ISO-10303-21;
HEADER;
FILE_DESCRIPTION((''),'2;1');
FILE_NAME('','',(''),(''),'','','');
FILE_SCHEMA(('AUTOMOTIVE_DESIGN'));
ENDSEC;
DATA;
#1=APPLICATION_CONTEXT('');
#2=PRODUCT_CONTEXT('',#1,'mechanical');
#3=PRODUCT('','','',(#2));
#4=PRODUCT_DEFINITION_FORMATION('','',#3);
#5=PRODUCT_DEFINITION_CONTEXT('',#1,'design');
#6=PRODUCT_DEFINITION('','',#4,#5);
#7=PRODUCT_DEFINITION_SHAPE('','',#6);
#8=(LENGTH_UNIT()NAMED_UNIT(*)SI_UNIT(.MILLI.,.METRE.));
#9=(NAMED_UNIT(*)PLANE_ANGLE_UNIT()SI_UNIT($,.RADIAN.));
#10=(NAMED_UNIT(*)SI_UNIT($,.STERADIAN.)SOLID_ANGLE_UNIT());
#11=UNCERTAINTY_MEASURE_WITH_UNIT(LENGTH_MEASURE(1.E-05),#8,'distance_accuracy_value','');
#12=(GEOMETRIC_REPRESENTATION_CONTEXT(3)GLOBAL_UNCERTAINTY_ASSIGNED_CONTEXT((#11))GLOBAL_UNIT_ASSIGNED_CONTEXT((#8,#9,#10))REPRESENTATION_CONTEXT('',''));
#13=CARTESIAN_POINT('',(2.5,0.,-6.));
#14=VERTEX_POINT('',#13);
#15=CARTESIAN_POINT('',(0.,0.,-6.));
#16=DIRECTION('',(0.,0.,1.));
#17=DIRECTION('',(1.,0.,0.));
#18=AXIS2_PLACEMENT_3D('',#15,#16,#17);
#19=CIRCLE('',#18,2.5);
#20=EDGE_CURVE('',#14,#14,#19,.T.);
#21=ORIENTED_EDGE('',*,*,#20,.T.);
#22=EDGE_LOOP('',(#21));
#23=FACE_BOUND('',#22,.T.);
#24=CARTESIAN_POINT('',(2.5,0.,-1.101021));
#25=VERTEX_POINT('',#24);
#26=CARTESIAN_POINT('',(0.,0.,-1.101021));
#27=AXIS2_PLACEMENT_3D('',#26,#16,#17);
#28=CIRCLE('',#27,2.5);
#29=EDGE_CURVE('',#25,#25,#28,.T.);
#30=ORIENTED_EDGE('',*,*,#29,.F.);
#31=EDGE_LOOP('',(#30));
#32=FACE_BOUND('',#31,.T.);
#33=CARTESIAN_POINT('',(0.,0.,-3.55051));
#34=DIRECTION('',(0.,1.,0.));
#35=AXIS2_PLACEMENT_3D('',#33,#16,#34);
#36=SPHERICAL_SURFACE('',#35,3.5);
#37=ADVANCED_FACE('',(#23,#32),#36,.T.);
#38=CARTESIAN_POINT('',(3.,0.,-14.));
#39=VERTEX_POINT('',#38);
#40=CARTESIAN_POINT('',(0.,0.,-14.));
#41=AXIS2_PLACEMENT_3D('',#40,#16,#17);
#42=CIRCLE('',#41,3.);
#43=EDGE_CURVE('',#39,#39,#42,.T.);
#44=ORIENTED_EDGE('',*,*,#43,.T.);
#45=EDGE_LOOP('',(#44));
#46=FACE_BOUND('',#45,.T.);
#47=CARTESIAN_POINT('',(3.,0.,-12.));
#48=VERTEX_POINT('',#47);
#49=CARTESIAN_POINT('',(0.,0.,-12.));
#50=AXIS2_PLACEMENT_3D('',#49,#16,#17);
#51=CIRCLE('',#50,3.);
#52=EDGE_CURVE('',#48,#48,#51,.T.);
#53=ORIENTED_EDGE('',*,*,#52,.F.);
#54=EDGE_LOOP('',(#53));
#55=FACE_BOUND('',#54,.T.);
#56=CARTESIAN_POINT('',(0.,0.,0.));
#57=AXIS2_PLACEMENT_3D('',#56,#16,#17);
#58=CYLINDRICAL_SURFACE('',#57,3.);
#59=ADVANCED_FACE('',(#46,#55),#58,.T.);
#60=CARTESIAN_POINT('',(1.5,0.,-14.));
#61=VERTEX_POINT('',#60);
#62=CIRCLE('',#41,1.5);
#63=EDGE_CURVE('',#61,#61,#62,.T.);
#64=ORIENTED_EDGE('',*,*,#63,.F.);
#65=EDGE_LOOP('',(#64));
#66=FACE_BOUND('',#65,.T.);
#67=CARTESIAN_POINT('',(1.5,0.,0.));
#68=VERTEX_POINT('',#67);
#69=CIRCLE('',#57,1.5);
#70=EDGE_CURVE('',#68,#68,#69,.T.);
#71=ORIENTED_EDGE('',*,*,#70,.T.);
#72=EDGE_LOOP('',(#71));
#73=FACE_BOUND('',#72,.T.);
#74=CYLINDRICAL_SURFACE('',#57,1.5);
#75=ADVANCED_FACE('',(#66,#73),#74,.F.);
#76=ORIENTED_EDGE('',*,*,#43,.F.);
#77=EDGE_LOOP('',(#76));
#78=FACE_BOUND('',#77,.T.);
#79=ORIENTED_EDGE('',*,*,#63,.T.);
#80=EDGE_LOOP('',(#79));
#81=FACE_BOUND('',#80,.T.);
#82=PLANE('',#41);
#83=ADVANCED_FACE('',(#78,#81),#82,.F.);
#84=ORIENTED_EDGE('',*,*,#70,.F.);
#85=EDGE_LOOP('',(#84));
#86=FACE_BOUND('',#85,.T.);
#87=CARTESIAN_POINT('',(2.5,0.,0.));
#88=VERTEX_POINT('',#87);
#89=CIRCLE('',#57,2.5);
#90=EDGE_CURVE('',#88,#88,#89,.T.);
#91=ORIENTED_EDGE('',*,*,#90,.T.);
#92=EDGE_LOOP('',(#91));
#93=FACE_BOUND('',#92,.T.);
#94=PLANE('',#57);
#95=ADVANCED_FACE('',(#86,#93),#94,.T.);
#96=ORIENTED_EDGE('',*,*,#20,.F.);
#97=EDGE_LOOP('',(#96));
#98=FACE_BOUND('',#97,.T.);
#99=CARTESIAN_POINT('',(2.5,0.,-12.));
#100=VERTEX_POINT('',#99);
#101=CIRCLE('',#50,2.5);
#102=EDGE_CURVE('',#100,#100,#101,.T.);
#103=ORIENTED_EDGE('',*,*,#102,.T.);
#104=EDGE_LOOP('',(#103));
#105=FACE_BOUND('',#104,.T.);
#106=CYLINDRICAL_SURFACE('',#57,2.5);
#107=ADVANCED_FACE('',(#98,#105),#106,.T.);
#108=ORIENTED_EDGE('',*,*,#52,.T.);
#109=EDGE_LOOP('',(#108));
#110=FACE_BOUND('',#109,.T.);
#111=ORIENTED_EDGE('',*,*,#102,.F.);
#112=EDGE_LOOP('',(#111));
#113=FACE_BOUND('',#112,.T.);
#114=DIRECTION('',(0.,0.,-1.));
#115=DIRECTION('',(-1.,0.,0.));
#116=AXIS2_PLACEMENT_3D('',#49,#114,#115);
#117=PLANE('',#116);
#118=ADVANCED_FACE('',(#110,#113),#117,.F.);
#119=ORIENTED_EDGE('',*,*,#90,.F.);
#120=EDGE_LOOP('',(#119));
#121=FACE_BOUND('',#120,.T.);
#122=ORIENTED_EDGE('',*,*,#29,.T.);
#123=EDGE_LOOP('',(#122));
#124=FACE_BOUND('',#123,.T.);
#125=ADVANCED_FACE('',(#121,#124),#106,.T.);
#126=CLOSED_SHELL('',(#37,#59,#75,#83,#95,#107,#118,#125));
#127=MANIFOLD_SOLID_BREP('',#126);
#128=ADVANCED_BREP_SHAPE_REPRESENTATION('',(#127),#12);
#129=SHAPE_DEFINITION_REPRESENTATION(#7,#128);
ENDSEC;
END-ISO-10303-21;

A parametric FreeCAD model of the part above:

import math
import FreeCAD as App
import Part
import Sketcher
Q = App.Units.Quantity

doc = App.newDocument("Part")
body = doc.addObject("PartDesign::Body", "Body")

sketch1 = doc.addObject("Sketcher::SketchObject", "Sketch")
body.addObject(sketch1)
sketch1.AttachmentSupport = (doc.YZ_Plane, [""])
sketch1.MapMode = "FlatFace"
sketch1.addGeometry(Part.ArcOfCircle(Part.Circle(App.Vector(0, -3.6, 0), App.Vector(0, 0, 1), 3.5), math.radians(-44), math.radians(44)), False)
sketch1.addGeometry(Part.LineSegment(App.Vector(2.5, -1.1, 0), App.Vector(2.5, 0, 0)), False)
sketch1.addGeometry(Part.LineSegment(App.Vector(2.5, 0, 0), App.Vector(1.5, 0, 0)), False)
sketch1.addGeometry(Part.LineSegment(App.Vector(1.5, 0, 0), App.Vector(1.5, -14, 0)), False)
sketch1.addGeometry(Part.LineSegment(App.Vector(1.5, -14, 0), App.Vector(3, -14, 0)), False)
sketch1.addGeometry(Part.LineSegment(App.Vector(3, -14, 0), App.Vector(3, -12, 0)), False)
sketch1.addGeometry(Part.LineSegment(App.Vector(3, -12, 0), App.Vector(2.5, -12, 0)), False)
sketch1.addGeometry(Part.LineSegment(App.Vector(2.5, -12, 0), App.Vector(2.5, -6, 0)), False)
sketch1.addConstraint(Sketcher.Constraint("Coincident", 0, 2, 1, 1))
sketch1.addConstraint(Sketcher.Constraint("Coincident", 1, 2, 2, 1))
sketch1.addConstraint(Sketcher.Constraint("Coincident", 2, 2, 3, 1))
sketch1.addConstraint(Sketcher.Constraint("Coincident", 3, 2, 4, 1))
sketch1.addConstraint(Sketcher.Constraint("Coincident", 4, 2, 5, 1))
sketch1.addConstraint(Sketcher.Constraint("Coincident", 5, 2, 6, 1))
sketch1.addConstraint(Sketcher.Constraint("Coincident", 6, 2, 7, 1))
sketch1.addConstraint(Sketcher.Constraint("Coincident", 7, 2, 0, 1))
sketch1.addConstraint(Sketcher.Constraint("Vertical", 1))
sketch1.addConstraint(Sketcher.Constraint("Horizontal", 2))
sketch1.addConstraint(Sketcher.Constraint("Vertical", 3))
sketch1.addConstraint(Sketcher.Constraint("Horizontal", 4))
sketch1.addConstraint(Sketcher.Constraint("Vertical", 5))
sketch1.addConstraint(Sketcher.Constraint("Horizontal", 6))
sketch1.addConstraint(Sketcher.Constraint("Vertical", 7))
sketch1.addConstraint(Sketcher.Constraint("PointOnObject", 0, 3, -2))
sketch1.addConstraint(Sketcher.Constraint("PointOnObject", 1, 2, -1))
sketch1.addConstraint(Sketcher.Constraint("Vertical", 1, 2, 6, 2))
sketch1.addConstraint(Sketcher.Constraint("Radius", 0, Q("3.5 mm")))
sketch1.addConstraint(Sketcher.Constraint("DistanceX", 2, 2, 2, 1, Q("1 mm")))
sketch1.addConstraint(Sketcher.Constraint("DistanceY", 3, 2, 3, 1, Q("14 mm")))
sketch1.addConstraint(Sketcher.Constraint("DistanceY", 5, 1, 5, 2, Q("2 mm")))
sketch1.addConstraint(Sketcher.Constraint("DistanceY", 7, 1, 7, 2, Q("6 mm")))
sketch1.addConstraint(Sketcher.Constraint("DistanceX", 4, 1, 4, 2, Q("1.5 mm")))
sketch1.addConstraint(Sketcher.Constraint("DistanceX", -1, 1, 4, 2, Q("3 mm")))
revolution = doc.addObject("PartDesign::Revolution", "Revolution")
body.addObject(revolution)
revolution.Profile = sketch1
revolution.ReferenceAxis = (sketch1, ["V_Axis"])
revolution.Angle = 360

doc.recompute()
